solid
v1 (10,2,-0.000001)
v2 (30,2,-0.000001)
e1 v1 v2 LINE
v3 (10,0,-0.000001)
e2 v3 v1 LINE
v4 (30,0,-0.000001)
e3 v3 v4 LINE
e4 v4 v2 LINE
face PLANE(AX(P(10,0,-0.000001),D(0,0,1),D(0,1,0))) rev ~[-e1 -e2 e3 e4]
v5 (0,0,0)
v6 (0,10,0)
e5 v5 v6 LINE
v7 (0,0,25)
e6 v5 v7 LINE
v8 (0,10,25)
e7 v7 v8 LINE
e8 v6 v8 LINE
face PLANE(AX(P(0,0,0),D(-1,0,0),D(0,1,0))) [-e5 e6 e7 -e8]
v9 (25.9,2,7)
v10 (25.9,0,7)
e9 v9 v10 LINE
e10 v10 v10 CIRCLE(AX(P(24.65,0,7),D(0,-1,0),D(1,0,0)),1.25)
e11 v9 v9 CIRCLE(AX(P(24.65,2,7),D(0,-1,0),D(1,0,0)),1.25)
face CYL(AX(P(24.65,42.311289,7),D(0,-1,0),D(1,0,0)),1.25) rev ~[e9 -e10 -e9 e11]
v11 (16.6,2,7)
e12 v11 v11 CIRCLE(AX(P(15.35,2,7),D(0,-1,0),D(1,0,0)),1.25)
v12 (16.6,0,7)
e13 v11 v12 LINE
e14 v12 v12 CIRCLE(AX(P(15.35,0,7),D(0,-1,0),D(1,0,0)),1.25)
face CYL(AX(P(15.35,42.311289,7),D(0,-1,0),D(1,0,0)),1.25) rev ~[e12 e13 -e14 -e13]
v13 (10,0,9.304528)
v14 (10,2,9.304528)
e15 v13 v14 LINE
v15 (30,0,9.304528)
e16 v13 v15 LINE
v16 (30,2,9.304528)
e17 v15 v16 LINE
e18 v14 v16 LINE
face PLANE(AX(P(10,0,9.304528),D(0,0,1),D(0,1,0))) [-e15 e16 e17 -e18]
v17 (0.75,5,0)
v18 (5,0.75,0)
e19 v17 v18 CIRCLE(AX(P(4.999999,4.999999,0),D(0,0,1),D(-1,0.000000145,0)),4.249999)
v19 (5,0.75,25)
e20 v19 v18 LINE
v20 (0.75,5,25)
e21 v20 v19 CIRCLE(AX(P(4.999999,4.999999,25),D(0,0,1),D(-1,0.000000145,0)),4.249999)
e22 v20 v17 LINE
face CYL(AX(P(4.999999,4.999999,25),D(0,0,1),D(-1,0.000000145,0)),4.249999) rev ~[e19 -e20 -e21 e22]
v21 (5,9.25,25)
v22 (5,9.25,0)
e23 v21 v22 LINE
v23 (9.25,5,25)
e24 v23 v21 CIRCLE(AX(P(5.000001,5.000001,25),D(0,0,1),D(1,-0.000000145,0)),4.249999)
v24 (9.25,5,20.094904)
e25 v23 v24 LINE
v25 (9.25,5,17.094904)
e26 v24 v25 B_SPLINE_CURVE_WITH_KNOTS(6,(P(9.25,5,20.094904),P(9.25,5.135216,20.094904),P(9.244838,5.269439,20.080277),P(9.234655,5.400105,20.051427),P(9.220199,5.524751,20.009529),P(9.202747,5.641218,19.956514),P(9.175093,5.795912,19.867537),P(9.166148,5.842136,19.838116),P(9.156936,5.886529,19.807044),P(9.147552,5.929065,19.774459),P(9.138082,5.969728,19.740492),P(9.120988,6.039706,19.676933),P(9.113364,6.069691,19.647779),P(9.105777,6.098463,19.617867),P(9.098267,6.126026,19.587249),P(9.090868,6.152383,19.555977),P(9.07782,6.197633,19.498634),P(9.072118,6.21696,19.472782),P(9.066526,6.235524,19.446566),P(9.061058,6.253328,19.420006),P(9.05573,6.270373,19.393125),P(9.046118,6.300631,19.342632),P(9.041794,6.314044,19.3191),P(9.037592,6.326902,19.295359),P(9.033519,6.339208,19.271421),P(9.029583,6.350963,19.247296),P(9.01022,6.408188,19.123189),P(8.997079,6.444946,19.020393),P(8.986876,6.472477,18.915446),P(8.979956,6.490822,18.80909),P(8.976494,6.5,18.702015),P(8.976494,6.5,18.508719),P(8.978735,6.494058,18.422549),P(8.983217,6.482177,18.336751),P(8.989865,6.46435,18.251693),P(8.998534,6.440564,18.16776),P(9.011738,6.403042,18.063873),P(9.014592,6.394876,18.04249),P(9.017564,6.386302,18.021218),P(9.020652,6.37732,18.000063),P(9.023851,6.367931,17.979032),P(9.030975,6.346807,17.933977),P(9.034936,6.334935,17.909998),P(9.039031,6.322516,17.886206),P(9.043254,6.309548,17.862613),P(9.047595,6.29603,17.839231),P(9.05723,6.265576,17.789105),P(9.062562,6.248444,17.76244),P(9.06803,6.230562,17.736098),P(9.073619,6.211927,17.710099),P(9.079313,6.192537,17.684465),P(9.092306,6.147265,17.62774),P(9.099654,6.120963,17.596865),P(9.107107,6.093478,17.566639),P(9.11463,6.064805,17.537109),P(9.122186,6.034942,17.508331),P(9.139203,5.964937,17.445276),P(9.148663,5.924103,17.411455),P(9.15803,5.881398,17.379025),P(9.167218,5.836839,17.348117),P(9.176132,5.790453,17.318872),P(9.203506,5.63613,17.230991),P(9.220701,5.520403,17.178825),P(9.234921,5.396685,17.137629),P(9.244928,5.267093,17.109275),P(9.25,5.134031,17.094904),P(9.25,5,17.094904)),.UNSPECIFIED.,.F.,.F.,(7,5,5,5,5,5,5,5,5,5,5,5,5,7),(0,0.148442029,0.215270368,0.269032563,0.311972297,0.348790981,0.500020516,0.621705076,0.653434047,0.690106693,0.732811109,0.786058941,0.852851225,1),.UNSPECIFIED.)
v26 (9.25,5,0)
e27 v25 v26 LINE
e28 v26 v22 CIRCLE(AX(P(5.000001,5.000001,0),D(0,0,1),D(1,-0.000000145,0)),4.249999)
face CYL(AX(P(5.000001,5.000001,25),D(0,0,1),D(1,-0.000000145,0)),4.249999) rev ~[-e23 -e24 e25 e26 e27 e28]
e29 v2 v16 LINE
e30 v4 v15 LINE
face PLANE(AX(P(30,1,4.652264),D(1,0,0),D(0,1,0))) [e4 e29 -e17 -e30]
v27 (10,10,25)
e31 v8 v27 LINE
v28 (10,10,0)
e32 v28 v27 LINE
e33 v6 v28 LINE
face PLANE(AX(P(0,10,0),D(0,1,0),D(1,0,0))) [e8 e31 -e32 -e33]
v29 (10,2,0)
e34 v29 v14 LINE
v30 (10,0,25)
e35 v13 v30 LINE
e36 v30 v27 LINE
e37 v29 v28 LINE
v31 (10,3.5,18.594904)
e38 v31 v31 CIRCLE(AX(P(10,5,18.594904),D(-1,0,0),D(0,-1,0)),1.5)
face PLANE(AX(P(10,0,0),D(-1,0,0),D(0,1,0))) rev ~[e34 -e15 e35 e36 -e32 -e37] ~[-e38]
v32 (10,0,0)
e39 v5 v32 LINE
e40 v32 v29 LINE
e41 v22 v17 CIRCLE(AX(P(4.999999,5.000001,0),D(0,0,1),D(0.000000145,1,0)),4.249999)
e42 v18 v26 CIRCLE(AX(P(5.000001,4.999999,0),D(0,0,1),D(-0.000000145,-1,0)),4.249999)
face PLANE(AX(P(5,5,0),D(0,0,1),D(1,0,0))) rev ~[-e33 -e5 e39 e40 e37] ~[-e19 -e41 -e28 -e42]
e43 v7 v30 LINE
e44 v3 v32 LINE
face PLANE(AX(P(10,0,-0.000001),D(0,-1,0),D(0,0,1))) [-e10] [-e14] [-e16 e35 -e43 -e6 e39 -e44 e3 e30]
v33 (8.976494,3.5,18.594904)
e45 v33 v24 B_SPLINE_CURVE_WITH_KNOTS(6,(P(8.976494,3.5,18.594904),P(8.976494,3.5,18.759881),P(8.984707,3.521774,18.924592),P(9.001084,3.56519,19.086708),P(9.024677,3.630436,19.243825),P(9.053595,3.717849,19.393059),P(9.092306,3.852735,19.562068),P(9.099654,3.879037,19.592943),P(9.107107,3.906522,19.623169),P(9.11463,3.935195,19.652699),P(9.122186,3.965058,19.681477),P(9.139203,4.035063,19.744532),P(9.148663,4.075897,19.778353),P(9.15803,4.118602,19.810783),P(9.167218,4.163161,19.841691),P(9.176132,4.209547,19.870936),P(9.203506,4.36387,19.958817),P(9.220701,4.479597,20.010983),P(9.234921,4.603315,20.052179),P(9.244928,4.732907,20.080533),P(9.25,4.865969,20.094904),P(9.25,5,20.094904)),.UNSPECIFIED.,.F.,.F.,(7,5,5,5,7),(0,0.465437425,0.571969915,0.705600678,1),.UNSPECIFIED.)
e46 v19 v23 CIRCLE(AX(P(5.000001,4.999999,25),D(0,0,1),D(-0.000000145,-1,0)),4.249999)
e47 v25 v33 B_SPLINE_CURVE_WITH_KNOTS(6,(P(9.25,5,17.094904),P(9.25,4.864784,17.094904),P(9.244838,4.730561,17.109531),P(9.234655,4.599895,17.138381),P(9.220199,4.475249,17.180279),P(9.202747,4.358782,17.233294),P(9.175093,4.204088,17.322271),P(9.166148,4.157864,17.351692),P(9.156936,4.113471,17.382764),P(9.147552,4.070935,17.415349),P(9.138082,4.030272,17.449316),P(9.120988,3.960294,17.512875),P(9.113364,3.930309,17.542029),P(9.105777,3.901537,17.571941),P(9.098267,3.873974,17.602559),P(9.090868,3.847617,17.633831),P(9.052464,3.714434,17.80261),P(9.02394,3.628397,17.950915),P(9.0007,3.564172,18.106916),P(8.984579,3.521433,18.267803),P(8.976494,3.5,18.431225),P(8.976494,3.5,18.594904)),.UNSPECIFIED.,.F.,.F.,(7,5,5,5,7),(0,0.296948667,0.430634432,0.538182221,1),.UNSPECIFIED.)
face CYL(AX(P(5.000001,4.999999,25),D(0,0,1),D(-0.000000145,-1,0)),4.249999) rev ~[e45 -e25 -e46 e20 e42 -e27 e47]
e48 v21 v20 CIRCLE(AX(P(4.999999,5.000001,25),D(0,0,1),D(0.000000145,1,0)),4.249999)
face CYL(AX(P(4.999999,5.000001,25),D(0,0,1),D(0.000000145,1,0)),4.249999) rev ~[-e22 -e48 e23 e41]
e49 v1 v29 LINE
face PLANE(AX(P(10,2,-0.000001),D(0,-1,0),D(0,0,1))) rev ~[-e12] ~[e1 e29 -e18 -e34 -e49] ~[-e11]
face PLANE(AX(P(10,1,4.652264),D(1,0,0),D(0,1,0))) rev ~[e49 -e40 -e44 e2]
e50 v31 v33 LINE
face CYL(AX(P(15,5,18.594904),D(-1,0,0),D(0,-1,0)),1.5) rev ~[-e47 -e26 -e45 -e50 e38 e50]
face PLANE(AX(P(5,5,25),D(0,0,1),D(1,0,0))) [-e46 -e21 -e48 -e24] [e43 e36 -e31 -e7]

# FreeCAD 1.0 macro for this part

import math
import FreeCAD as App
import Part
import Sketcher


def add_polygon(sketch, points):
    """Adds a closed chain of lines whose ends are joined by coincident constraints."""
    first, n = sketch.GeometryCount, len(points)
    for a, b in zip(points, points[1:] + points[:1]):
        sketch.addGeometry(Part.LineSegment(App.Vector(*a, 0), App.Vector(*b, 0)), False)
    for i in range(n):
        sketch.addConstraint(Sketcher.Constraint("Coincident", first + i, 2, first + (i + 1) % n, 1))

doc = App.newDocument("Part")
params = doc.addObject("Spreadsheet::Sheet", "Params")
for row, (alias, value) in enumerate([
    ("sketch1_width", "10 mm"),
    ("pad1_length", "25 mm"),
    ("sketch2_radius", "4.249999 mm"),
    ("sketch3_width", "2 mm"),
    ("pad2_length", "20 mm"),
    ("sketch4_diameter", "2.5 mm"),
    ("hole_diameter", "2.5 mm"),
    ("sketch5_diameter", "3 mm"),
    ("hole2_diameter", "3 mm"),
    ("hole2_depth", "5 mm"),
], start=1):
    params.set(f"A{row}", alias)
    params.set(f"B{row}", "=" + value)
    params.setAlias(f"B{row}", alias)

body = doc.addObject("PartDesign::Body", "Body")

# Sketch on XY plane
sketch1 = body.newObject("Sketcher::SketchObject", "Sketch")
sketch1.AttachmentSupport = (doc.getObject("XY_Plane"), [""])
sketch1.MapMode = "FlatFace"
add_polygon(sketch1, [(0, 10), (0, 0), (10, 0), (10, 10)])  # lines 0-3
sketch1.addConstraint([
    Sketcher.Constraint("Vertical", 0),
    Sketcher.Constraint("Horizontal", 1),
    Sketcher.Constraint("Vertical", 2),
    Sketcher.Constraint("Horizontal", 3),
    Sketcher.Constraint("Coincident", 0, 2, -1, 1),
    Sketcher.Constraint("Equal", 3, 0),
    Sketcher.Constraint("DistanceX", 1, 1, 1, 2, 10.0),
])
sketch1.setExpression("Constraints[10]", "Params.sketch1_width")
pad1 = body.newObject("PartDesign::Pad", "Pad")
pad1.Profile = sketch1
pad1.setExpression("Length", "Params.pad1_length")

# Sketch on XY plane
sketch2 = body.newObject("Sketcher::SketchObject", "Sketch001")
sketch2.AttachmentSupport = (doc.getObject("XY_Plane"), [""])
sketch2.MapMode = "FlatFace"
sketch2.AttachmentOffset = App.Placement(App.Vector(0, 0, 25), App.Rotation())
sketch2.addGeometry([
    Part.ArcOfCircle(Part.Circle(App.Vector(5.000001, 5.000001, 0), App.Vector(0, 0, 1), 4.249999), math.radians(-0.000008), math.radians(90.000008)),
    Part.ArcOfCircle(Part.Circle(App.Vector(4.999999, 5.000001, 0), App.Vector(0, 0, 1), 4.249999), math.radians(89.999992), math.radians(180.000008)),
    Part.ArcOfCircle(Part.Circle(App.Vector(4.999999, 4.999999, 0), App.Vector(0, 0, 1), 4.249999), math.radians(179.999992), math.radians(270.000008)),
    Part.ArcOfCircle(Part.Circle(App.Vector(5.000001, 4.999999, 0), App.Vector(0, 0, 1), 4.249999), math.radians(-90.000008), math.radians(0.000008)),
], False)
sketch2.addConstraint([
    Sketcher.Constraint("Tangent", 0, 2, 1, 1),
    Sketcher.Constraint("Tangent", 1, 2, 2, 1),
    Sketcher.Constraint("Tangent", 2, 2, 3, 1),
    Sketcher.Constraint("Tangent", 3, 2, 0, 1),
    Sketcher.Constraint("Equal", 0, 1),
    Sketcher.Constraint("Horizontal", 3, 3, 1, 2),
    Sketcher.Constraint("Horizontal", 1, 2, 3, 2),
    Sketcher.Constraint("Vertical", 3, 3, 0, 2),
    Sketcher.Constraint("Vertical", 0, 2, 2, 2),
    Sketcher.Constraint("Radius", 0, 4.249999),
    Sketcher.Constraint("DistanceX", -1, 1, 0, 3, 5.000001),
    Sketcher.Constraint("DistanceY", -1, 1, 0, 3, 5.000001),
])
sketch2.setExpression("Constraints[9]", "Params.sketch2_radius")
pocket1 = body.newObject("PartDesign::Pocket", "Pocket")
pocket1.Profile = sketch2
pocket1.Type = "ThroughAll"

# Sketch on YZ plane
sketch3 = body.newObject("Sketcher::SketchObject", "Sketch002")
sketch3.AttachmentSupport = (doc.getObject("YZ_Plane"), [""])
sketch3.MapMode = "FlatFace"
sketch3.AttachmentOffset = App.Placement(App.Vector(0, 0, 10), App.Rotation())
add_polygon(sketch3, [(0, 9.304528), (0, 0), (2, 0), (2, 9.304528)])  # lines 0-3
sketch3.addConstraint([
    Sketcher.Constraint("Vertical", 0),
    Sketcher.Constraint("Horizontal", 1),
    Sketcher.Constraint("Vertical", 2),
    Sketcher.Constraint("Horizontal", 3),
    Sketcher.Constraint("Coincident", 0, 2, -1, 1),
    Sketcher.Constraint("DistanceX", 1, 1, 1, 2, 2.0),
    Sketcher.Constraint("DistanceY", 0, 2, 0, 1, 9.304529),
])
sketch3.setExpression("Constraints[9]", "Params.sketch3_width")
pad2 = body.newObject("PartDesign::Pad", "Pad001")
pad2.Profile = sketch3
pad2.setExpression("Length", "Params.pad2_length")

# Sketch on XZ plane
sketch4 = body.newObject("Sketcher::SketchObject", "Sketch003")
sketch4.AttachmentSupport = (doc.getObject("XZ_Plane"), [""])
sketch4.MapMode = "FlatFace"
sketch4.AttachmentOffset = App.Placement(App.Vector(0, 0, -2), App.Rotation())
sketch4.addGeometry([
    Part.Circle(App.Vector(15.35, 7, 0), App.Vector(0, 0, 1), 1.25),
    Part.Circle(App.Vector(24.65, 7, 0), App.Vector(0, 0, 1), 1.25),
], False)
sketch4.addConstraint([
    Sketcher.Constraint("Equal", 0, 1),
    Sketcher.Constraint("Horizontal", 0, 3, 1, 3),
    Sketcher.Constraint("Diameter", 0, 2.5),
    Sketcher.Constraint("DistanceY", -1, 1, 0, 3, 7.0),
    Sketcher.Constraint("DistanceX", 0, 3, 1, 3, 9.3),
    Sketcher.Constraint("DistanceX", -1, 1, 0, 3, 15.35),
])
sketch4.setExpression("Constraints[2]", "Params.sketch4_diameter")
doc.recompute()
hole = body.newObject("PartDesign::Hole", "Hole")
hole.Profile = sketch4
hole.ThreadType = "None"
hole.setExpression("Diameter", "Params.hole_diameter")
hole.DepthType = "ThroughAll"
hole.Reversed = True

# Sketch on YZ plane
sketch5 = body.newObject("Sketcher::SketchObject", "Sketch004")
sketch5.AttachmentSupport = (doc.getObject("YZ_Plane"), [""])
sketch5.MapMode = "FlatFace"
sketch5.AttachmentOffset = App.Placement(App.Vector(0, 0, 10), App.Rotation())
sketch5.addGeometry(Part.Circle(App.Vector(5, 18.594904, 0), App.Vector(0, 0, 1), 1.5), False)
sketch5.addConstraint([
    Sketcher.Constraint("Diameter", 0, 3.0),
    Sketcher.Constraint("DistanceX", -1, 1, 0, 3, 5.0),
    Sketcher.Constraint("DistanceY", -1, 1, 0, 3, 18.594904),
])
sketch5.setExpression("Constraints[0]", "Params.sketch5_diameter")
doc.recompute()
hole2 = body.newObject("PartDesign::Hole", "Hole001")
hole2.Profile = sketch5
hole2.ThreadType = "None"
hole2.setExpression("Diameter", "Params.hole2_diameter")
hole2.DepthType = "Dimension"
hole2.setExpression("Depth", "Params.hole2_depth")
hole2.DrillPoint = "Flat"

doc.recompute()
